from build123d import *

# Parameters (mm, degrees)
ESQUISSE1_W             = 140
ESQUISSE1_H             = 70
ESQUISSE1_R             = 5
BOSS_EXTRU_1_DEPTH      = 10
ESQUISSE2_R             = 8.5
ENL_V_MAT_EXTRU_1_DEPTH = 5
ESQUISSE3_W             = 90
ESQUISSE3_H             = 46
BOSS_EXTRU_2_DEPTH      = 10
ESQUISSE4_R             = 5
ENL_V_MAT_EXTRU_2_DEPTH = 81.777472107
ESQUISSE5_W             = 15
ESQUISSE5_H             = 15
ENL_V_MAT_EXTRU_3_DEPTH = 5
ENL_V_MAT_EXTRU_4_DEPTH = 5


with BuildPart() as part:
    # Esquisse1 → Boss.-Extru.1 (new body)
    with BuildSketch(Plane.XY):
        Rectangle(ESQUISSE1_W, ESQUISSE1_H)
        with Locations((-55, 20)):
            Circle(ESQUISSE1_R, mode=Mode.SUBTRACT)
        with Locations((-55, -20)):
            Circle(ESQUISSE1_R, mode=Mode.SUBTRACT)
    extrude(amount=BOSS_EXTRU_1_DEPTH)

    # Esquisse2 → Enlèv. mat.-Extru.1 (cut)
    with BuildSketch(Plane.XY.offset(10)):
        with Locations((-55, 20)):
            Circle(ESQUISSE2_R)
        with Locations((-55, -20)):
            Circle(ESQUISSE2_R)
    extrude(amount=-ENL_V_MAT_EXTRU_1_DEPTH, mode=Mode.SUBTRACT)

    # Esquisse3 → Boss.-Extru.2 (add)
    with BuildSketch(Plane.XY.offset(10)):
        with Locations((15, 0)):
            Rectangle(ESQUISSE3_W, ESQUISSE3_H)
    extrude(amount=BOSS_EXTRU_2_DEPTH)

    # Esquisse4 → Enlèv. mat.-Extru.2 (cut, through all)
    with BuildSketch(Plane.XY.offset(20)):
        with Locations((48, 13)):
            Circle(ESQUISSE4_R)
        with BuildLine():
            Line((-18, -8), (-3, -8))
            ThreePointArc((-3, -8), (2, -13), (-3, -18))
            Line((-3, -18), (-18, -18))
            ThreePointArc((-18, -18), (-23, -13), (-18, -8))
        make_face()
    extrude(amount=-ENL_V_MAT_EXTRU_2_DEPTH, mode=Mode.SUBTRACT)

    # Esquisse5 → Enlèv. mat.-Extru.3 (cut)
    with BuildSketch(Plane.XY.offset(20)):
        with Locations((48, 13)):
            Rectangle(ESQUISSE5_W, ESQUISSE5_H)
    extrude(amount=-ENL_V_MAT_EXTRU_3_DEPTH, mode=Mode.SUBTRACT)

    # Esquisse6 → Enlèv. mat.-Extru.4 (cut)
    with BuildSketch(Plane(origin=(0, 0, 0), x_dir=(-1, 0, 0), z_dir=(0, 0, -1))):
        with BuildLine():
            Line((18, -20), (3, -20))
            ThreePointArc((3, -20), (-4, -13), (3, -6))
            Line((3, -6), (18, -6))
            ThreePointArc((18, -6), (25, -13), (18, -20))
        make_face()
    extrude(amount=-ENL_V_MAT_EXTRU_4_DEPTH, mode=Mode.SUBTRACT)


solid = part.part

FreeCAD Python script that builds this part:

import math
import FreeCAD as App
import Part
import Sketcher
Q = App.Units.Quantity


def add_polygon(sketch, points):
    """Adds a closed chain of lines whose ends are joined by coincident constraints."""
    first, n = sketch.GeometryCount, len(points)
    for a, b in zip(points, points[1:] + points[:1]):
        sketch.addGeometry(Part.LineSegment(App.Vector(*a, 0), App.Vector(*b, 0)), False)
    for i in range(n):
        sketch.addConstraint(Sketcher.Constraint("Coincident", first + i, 2, first + (i + 1) % n, 1))

doc = App.newDocument("Part")
body = doc.addObject("PartDesign::Body", "Body")

sketch1 = body.newObject("Sketcher::SketchObject", "Sketch")
sketch1.AttachmentSupport = (doc.getObject("XY_Plane"), [""])
sketch1.MapMode = "FlatFace"
add_polygon(sketch1, [(-70, 35), (-70, -35), (70, -35), (70, 35)])
sketch1.addGeometry(Part.Circle(App.Vector(-55, -20, 0), App.Vector(0, 0, 1), 5), False)
sketch1.addGeometry(Part.Circle(App.Vector(-55, 20, 0), App.Vector(0, 0, 1), 5), False)
sketch1.addConstraint([
    Sketcher.Constraint("Vertical", 0),
    Sketcher.Constraint("Horizontal", 1),
    Sketcher.Constraint("Vertical", 2),
    Sketcher.Constraint("Horizontal", 3),
    Sketcher.Constraint("Equal", 4, 5),
    Sketcher.Constraint("Symmetric", 0, 2, 2, 2, -1, 1),
    Sketcher.Constraint("Symmetric", 4, 3, 5, 3, -1),
    Sketcher.Constraint("Diameter", 4, Q("10 mm")),
    Sketcher.Constraint("DistanceX", 1, 1, 1, 2, Q("140 mm")),
    Sketcher.Constraint("DistanceY", 0, 2, 0, 1, Q("70 mm")),
    Sketcher.Constraint("DistanceX", 4, 3, -1, 1, Q("55 mm")),
    Sketcher.Constraint("DistanceY", 4, 3, -1, 1, Q("20 mm")),
])
pad1 = body.newObject("PartDesign::Pad", "Pad")
pad1.Profile = sketch1
pad1.Length = 10

sketch2 = body.newObject("Sketcher::SketchObject", "Sketch001")
sketch2.AttachmentSupport = (doc.getObject("XY_Plane"), [""])
sketch2.MapMode = "FlatFace"
sketch2.AttachmentOffset = App.Placement(App.Vector(0, 0, 10), App.Rotation())
sketch2.addGeometry([
    Part.Circle(App.Vector(-55, 20, 0), App.Vector(0, 0, 1), 8),
    Part.Circle(App.Vector(-55, -20, 0), App.Vector(0, 0, 1), 8),
], False)
sketch2.addConstraint([
    Sketcher.Constraint("Equal", 0, 1),
    Sketcher.Constraint("Symmetric", 0, 3, 1, 3, -1),
    Sketcher.Constraint("Diameter", 0, Q("17 mm")),
    Sketcher.Constraint("DistanceX", 0, 3, -1, 1, Q("55 mm")),
    Sketcher.Constraint("DistanceY", -1, 1, 0, 3, Q("20 mm")),
])
pocket1 = body.newObject("PartDesign::Pocket", "Pocket")
pocket1.Profile = sketch2
pocket1.Length = 5

sketch3 = body.newObject("Sketcher::SketchObject", "Sketch002")
sketch3.AttachmentSupport = (doc.getObject("XY_Plane"), [""])
sketch3.MapMode = "FlatFace"
sketch3.AttachmentOffset = App.Placement(App.Vector(0, 0, 10), App.Rotation())
add_polygon(sketch3, [(-30, 23), (-30, -23), (60, -23), (60, 23)])
sketch3.addConstraint([
    Sketcher.Constraint("Vertical", 0),
    Sketcher.Constraint("Horizontal", 1),
    Sketcher.Constraint("Vertical", 2),
    Sketcher.Constraint("Horizontal", 3),
    Sketcher.Constraint("DistanceX", 1, 1, 1, 2, Q("90 mm")),
    Sketcher.Constraint("DistanceY", 0, 2, 0, 1, Q("46 mm")),
    Sketcher.Constraint("DistanceX", 0, 2, -1, 1, Q("30 mm")),
    Sketcher.Constraint("DistanceY", 0, 2, -1, 1, Q("23 mm")),
])
pad2 = body.newObject("PartDesign::Pad", "Pad001")
pad2.Profile = sketch3
pad2.Length = 10

sketch4 = body.newObject("Sketcher::SketchObject", "Sketch003")
sketch4.AttachmentSupport = (doc.getObject("XY_Plane"), [""])
sketch4.MapMode = "FlatFace"
sketch4.AttachmentOffset = App.Placement(App.Vector(0, 0, 20), App.Rotation())
sketch4.addGeometry([
    Part.Circle(App.Vector(48, 13, 0), App.Vector(0, 0, 1), 5),
    Part.LineSegment(App.Vector(-3, -8, 0), App.Vector(-18, -8, 0)),
    Part.ArcOfCircle(Part.Circle(App.Vector(-18, -13, 0), App.Vector(0, 0, 1), 5), math.radians(90), math.radians(270)),
    Part.LineSegment(App.Vector(-18, -18, 0), App.Vector(-3, -18, 0)),
    Part.ArcOfCircle(Part.Circle(App.Vector(-3, -13, 0), App.Vector(0, 0, 1), 5), math.radians(-90), math.radians(90)),
], False)
sketch4.addConstraint([
    Sketcher.Constraint("Tangent", 1, 2, 2, 1),
    Sketcher.Constraint("Tangent", 2, 2, 3, 1),
    Sketcher.Constraint("Tangent", 3, 2, 4, 1),
    Sketcher.Constraint("Tangent", 4, 2, 1, 1),
    Sketcher.Constraint("Horizontal", 1),
    Sketcher.Constraint("Horizontal", 3),
    Sketcher.Constraint("Equal", 0, 2),
    Sketcher.Constraint("Diameter", 0, Q("10 mm")),
    Sketcher.Constraint("DistanceX", 1, 2, 1, 1, Q("15 mm")),
    Sketcher.Constraint("DistanceX", -1, 1, 0, 3, Q("48 mm")),
    Sketcher.Constraint("DistanceY", -1, 1, 0, 3, Q("13 mm")),
    Sketcher.Constraint("DistanceX", 2, 3, -1, 1, Q("18 mm")),
    Sketcher.Constraint("DistanceY", 2, 3, -1, 1, Q("13 mm")),
])
pocket2 = body.newObject("PartDesign::Pocket", "Pocket001")
pocket2.Profile = sketch4
pocket2.Type = "ThroughAll"

sketch5 = body.newObject("Sketcher::SketchObject", "Sketch004")
sketch5.AttachmentSupport = (doc.getObject("XY_Plane"), [""])
sketch5.MapMode = "FlatFace"
sketch5.AttachmentOffset = App.Placement(App.Vector(0, 0, 20), App.Rotation())
add_polygon(sketch5, [(40, 20), (40, 6), (56, 6), (56, 20)])
sketch5.addConstraint([
    Sketcher.Constraint("Vertical", 0),
    Sketcher.Constraint("Horizontal", 1),
    Sketcher.Constraint("Vertical", 2),
    Sketcher.Constraint("Horizontal", 3),
    Sketcher.Constraint("Equal", 3, 0),
    Sketcher.Constraint("DistanceX", 1, 1, 1, 2, Q("15 mm")),
    Sketcher.Constraint("DistanceX", -1, 1, 0, 2, Q("40.5 mm")),
    Sketcher.Constraint("DistanceY", -1, 1, 0, 2, Q("5.5 mm")),
])
pocket3 = body.newObject("PartDesign::Pocket", "Pocket002")
pocket3.Profile = sketch5
pocket3.Length = 5

sketch6 = body.newObject("Sketcher::SketchObject", "Sketch005")
sketch6.AttachmentSupport = (doc.getObject("XY_Plane"), [""])
sketch6.MapMode = "FlatFace"
sketch6.addGeometry([
    Part.LineSegment(App.Vector(-3, -20, 0), App.Vector(-18, -20, 0)),
    Part.ArcOfCircle(Part.Circle(App.Vector(-18, -13, 0), App.Vector(0, 0, 1), 7), math.radians(90), math.radians(270)),
    Part.LineSegment(App.Vector(-18, -6, 0), App.Vector(-3, -6, 0)),
    Part.ArcOfCircle(Part.Circle(App.Vector(-3, -13, 0), App.Vector(0, 0, 1), 7), math.radians(-90), math.radians(90)),
], False)
sketch6.addConstraint([
    Sketcher.Constraint("Tangent", 0, 2, 1, 2),
    Sketcher.Constraint("Tangent", 1, 1, 2, 1),
    Sketcher.Constraint("Tangent", 2, 2, 3, 2),
    Sketcher.Constraint("Tangent", 3, 1, 0, 1),
    Sketcher.Constraint("Horizontal", 0),
    Sketcher.Constraint("Horizontal", 2),
    Sketcher.Constraint("Radius", 1, Q("7 mm")),
    Sketcher.Constraint("DistanceX", 0, 2, 0, 1, Q("15 mm")),
    Sketcher.Constraint("DistanceX", 1, 3, -1, 1, Q("18 mm")),
    Sketcher.Constraint("DistanceY", 1, 3, -1, 1, Q("13 mm")),
])
pocket4 = body.newObject("PartDesign::Pocket", "Pocket003")
pocket4.Profile = sketch6
pocket4.Length = 5
pocket4.Reversed = True

doc.recompute()
